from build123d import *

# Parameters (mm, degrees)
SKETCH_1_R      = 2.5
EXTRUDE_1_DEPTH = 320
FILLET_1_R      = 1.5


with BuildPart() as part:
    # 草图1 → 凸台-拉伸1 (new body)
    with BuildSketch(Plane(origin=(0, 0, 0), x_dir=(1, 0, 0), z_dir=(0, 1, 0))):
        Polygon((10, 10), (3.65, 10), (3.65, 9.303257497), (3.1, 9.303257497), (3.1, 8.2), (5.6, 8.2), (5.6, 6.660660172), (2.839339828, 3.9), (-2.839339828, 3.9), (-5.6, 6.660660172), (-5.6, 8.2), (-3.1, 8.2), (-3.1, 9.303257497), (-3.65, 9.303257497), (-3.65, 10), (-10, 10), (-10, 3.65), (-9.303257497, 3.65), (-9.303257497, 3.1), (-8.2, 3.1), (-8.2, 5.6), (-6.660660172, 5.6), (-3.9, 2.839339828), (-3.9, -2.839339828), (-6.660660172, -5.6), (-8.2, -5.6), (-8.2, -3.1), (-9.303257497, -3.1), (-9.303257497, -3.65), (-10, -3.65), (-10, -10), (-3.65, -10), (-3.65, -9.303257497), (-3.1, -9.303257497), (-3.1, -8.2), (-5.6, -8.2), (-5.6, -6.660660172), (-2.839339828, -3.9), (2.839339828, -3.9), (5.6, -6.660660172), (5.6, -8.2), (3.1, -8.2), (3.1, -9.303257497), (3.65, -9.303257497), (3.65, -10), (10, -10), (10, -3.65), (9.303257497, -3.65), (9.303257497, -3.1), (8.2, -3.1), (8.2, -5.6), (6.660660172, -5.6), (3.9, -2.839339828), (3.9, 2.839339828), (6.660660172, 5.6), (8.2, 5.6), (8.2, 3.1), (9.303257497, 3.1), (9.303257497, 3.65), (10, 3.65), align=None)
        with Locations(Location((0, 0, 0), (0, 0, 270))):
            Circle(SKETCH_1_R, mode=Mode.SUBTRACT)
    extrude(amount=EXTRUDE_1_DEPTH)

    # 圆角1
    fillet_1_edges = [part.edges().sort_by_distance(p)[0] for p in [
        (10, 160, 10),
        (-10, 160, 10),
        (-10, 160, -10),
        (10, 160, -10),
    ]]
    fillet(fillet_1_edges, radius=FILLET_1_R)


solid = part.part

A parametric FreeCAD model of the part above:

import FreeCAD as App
import Part
import Sketcher

V = App.Vector


def edges_at(feature, points):
    """Names of the edges that pass closest to the given points."""
    edges = feature.Shape.Edges
    near = lambda p: min(range(len(edges)), key=lambda i: edges[i].distToShape(Part.Vertex(*p))[0])
    return sorted({f"Edge{near(p) + 1}" for p in points})

doc = App.newDocument("Part")
params = doc.addObject("Spreadsheet::Sheet", "Params")
for row, (alias, value) in enumerate([
    ("sketch1_diameter", "5 mm"),
    ("sketch1_width", "2.5 mm"),
    ("sketch1_width2", "6.35 mm"),
    ("sketch1_width3", "0.55 mm"),
    ("pad1_length", "320 mm"),
    ("fillet_radius", "1.5 mm"),
], start=1):
    params.set(f"A{row}", alias)
    params.set(f"B{row}", "=" + value)
    params.setAlias(f"B{row}", alias)

body = doc.addObject("PartDesign::Body", "Body")

sketch1 = doc.addObject("Sketcher::SketchObject", "Sketch")
body.addObject(sketch1)
sketch1.AttachmentSupport = (doc.XZ_Plane, [""])
sketch1.MapMode = "FlatFace"
sketch1.addGeometry(Part.LineSegment(V(10, -10, 0), V(3.6, -10, 0)), False)
sketch1.addGeometry(Part.LineSegment(V(3.6, -10, 0), V(3.6, -9.3, 0)), False)
sketch1.addGeometry(Part.LineSegment(V(3.6, -9.3, 0), V(3.1, -9.3, 0)), False)
sketch1.addGeometry(Part.LineSegment(V(3.1, -9.3, 0), V(3.1, -8.2, 0)), False)
sketch1.addGeometry(Part.LineSegment(V(3.1, -8.2, 0), V(5.6, -8.2, 0)), False)
sketch1.addGeometry(Part.LineSegment(V(5.6, -8.2, 0), V(5.6, -6.7, 0)), False)
sketch1.addGeometry(Part.LineSegment(V(5.6, -6.7, 0), V(2.8, -3.9, 0)), False)
sketch1.addGeometry(Part.LineSegment(V(2.8, -3.9, 0), V(-2.8, -3.9, 0)), False)
sketch1.addGeometry(Part.LineSegment(V(-2.8, -3.9, 0), V(-5.6, -6.7, 0)), False)
sketch1.addGeometry(Part.LineSegment(V(-5.6, -6.7, 0), V(-5.6, -8.2, 0)), False)
sketch1.addGeometry(Part.LineSegment(V(-5.6, -8.2, 0), V(-3.1, -8.2, 0)), False)
sketch1.addGeometry(Part.LineSegment(V(-3.1, -8.2, 0), V(-3.1, -9.3, 0)), False)
sketch1.addGeometry(Part.LineSegment(V(-3.1, -9.3, 0), V(-3.6, -9.3, 0)), False)
sketch1.addGeometry(Part.LineSegment(V(-3.6, -9.3, 0), V(-3.6, -10, 0)), False)
sketch1.addGeometry(Part.LineSegment(V(-3.6, -10, 0), V(-10, -10, 0)), False)
sketch1.addGeometry(Part.LineSegment(V(-10, -10, 0), V(-10, -3.6, 0)), False)
sketch1.addGeometry(Part.LineSegment(V(-10, -3.6, 0), V(-9.3, -3.6, 0)), False)
sketch1.addGeometry(Part.LineSegment(V(-9.3, -3.6, 0), V(-9.3, -3.1, 0)), False)
sketch1.addGeometry(Part.LineSegment(V(-9.3, -3.1, 0), V(-8.2, -3.1, 0)), False)
sketch1.addGeometry(Part.LineSegment(V(-8.2, -3.1, 0), V(-8.2, -5.6, 0)), False)
sketch1.addGeometry(Part.LineSegment(V(-8.2, -5.6, 0), V(-6.7, -5.6, 0)), False)
sketch1.addGeometry(Part.LineSegment(V(-6.7, -5.6, 0), V(-3.9, -2.8, 0)), False)
sketch1.addGeometry(Part.LineSegment(V(-3.9, -2.8, 0), V(-3.9, 2.8, 0)), False)
sketch1.addGeometry(Part.LineSegment(V(-3.9, 2.8, 0), V(-6.7, 5.6, 0)), False)
sketch1.addGeometry(Part.LineSegment(V(-6.7, 5.6, 0), V(-8.2, 5.6, 0)), False)
sketch1.addGeometry(Part.LineSegment(V(-8.2, 5.6, 0), V(-8.2, 3.1, 0)), False)
sketch1.addGeometry(Part.LineSegment(V(-8.2, 3.1, 0), V(-9.3, 3.1, 0)), False)
sketch1.addGeometry(Part.LineSegment(V(-9.3, 3.1, 0), V(-9.3, 3.6, 0)), False)
sketch1.addGeometry(Part.LineSegment(V(-9.3, 3.6, 0), V(-10, 3.6, 0)), False)
sketch1.addGeometry(Part.LineSegment(V(-10, 3.6, 0), V(-10, 10, 0)), False)
sketch1.addGeometry(Part.LineSegment(V(-10, 10, 0), V(-3.6, 10, 0)), False)
sketch1.addGeometry(Part.LineSegment(V(-3.6, 10, 0), V(-3.6, 9.3, 0)), False)
sketch1.addGeometry(Part.LineSegment(V(-3.6, 9.3, 0), V(-3.1, 9.3, 0)), False)
sketch1.addGeometry(Part.LineSegment(V(-3.1, 9.3, 0), V(-3.1, 8.2, 0)), False)
sketch1.addGeometry(Part.LineSegment(V(-3.1, 8.2, 0), V(-5.6, 8.2, 0)), False)
sketch1.addGeometry(Part.LineSegment(V(-5.6, 8.2, 0), V(-5.6, 6.7, 0)), False)
sketch1.addGeometry(Part.LineSegment(V(-5.6, 6.7, 0), V(-2.8, 3.9, 0)), False)
sketch1.addGeometry(Part.LineSegment(V(-2.8, 3.9, 0), V(2.8, 3.9, 0)), False)
sketch1.addGeometry(Part.LineSegment(V(2.8, 3.9, 0), V(5.6, 6.7, 0)), False)
sketch1.addGeometry(Part.LineSegment(V(5.6, 6.7, 0), V(5.6, 8.2, 0)), False)
sketch1.addGeometry(Part.LineSegment(V(5.6, 8.2, 0), V(3.1, 8.2, 0)), False)
sketch1.addGeometry(Part.LineSegment(V(3.1, 8.2, 0), V(3.1, 9.3, 0)), False)
sketch1.addGeometry(Part.LineSegment(V(3.1, 9.3, 0), V(3.6, 9.3, 0)), False)
sketch1.addGeometry(Part.LineSegment(V(3.6, 9.3, 0), V(3.6, 10, 0)), False)
sketch1.addGeometry(Part.LineSegment(V(3.6, 10, 0), V(10, 10, 0)), False)
sketch1.addGeometry(Part.LineSegment(V(10, 10, 0), V(10, 3.6, 0)), False)
sketch1.addGeometry(Part.LineSegment(V(10, 3.6, 0), V(9.3, 3.6, 0)), False)
sketch1.addGeometry(Part.LineSegment(V(9.3, 3.6, 0), V(9.3, 3.1, 0)), False)
sketch1.addGeometry(Part.LineSegment(V(9.3, 3.1, 0), V(8.2, 3.1, 0)), False)
sketch1.addGeometry(Part.LineSegment(V(8.2, 3.1, 0), V(8.2, 5.6, 0)), False)
sketch1.addGeometry(Part.LineSegment(V(8.2, 5.6, 0), V(6.7, 5.6, 0)), False)
sketch1.addGeometry(Part.LineSegment(V(6.7, 5.6, 0), V(3.9, 2.8, 0)), False)
sketch1.addGeometry(Part.LineSegment(V(3.9, 2.8, 0), V(3.9, -2.8, 0)), False)
sketch1.addGeometry(Part.LineSegment(V(3.9, -2.8, 0), V(6.7, -5.6, 0)), False)
sketch1.addGeometry(Part.LineSegment(V(6.7, -5.6, 0), V(8.2, -5.6, 0)), False)
sketch1.addGeometry(Part.LineSegment(V(8.2, -5.6, 0), V(8.2, -3.1, 0)), False)
sketch1.addGeometry(Part.LineSegment(V(8.2, -3.1, 0), V(9.3, -3.1, 0)), False)
sketch1.addGeometry(Part.LineSegment(V(9.3, -3.1, 0), V(9.3, -3.6, 0)), False)
sketch1.addGeometry(Part.LineSegment(V(9.3, -3.6, 0), V(10, -3.6, 0)), False)
sketch1.addGeometry(Part.LineSegment(V(10, -3.6, 0), V(10, -10, 0)), False)
sketch1.addGeometry(Part.Circle(V(0, 0, 0), V(0, 0, 1), 2.5), False)
sketch1.addConstraint(Sketcher.Constraint("Coincident", 0, 2, 1, 1))
sketch1.addConstraint(Sketcher.Constraint("Coincident", 1, 2, 2, 1))
sketch1.addConstraint(Sketcher.Constraint("Coincident", 2, 2, 3, 1))
sketch1.addConstraint(Sketcher.Constraint("Coincident", 3, 2, 4, 1))
sketch1.addConstraint(Sketcher.Constraint("Coincident", 4, 2, 5, 1))
sketch1.addConstraint(Sketcher.Constraint("Coincident", 5, 2, 6, 1))
sketch1.addConstraint(Sketcher.Constraint("Coincident", 6, 2, 7, 1))
sketch1.addConstraint(Sketcher.Constraint("Coincident", 7, 2, 8, 1))
sketch1.addConstraint(Sketcher.Constraint("Coincident", 8, 2, 9, 1))
sketch1.addConstraint(Sketcher.Constraint("Coincident", 9, 2, 10, 1))
sketch1.addConstraint(Sketcher.Constraint("Coincident", 10, 2, 11, 1))
sketch1.addConstraint(Sketcher.Constraint("Coincident", 11, 2, 12, 1))
sketch1.addConstraint(Sketcher.Constraint("Coincident", 12, 2, 13, 1))
sketch1.addConstraint(Sketcher.Constraint("Coincident", 13, 2, 14, 1))
sketch1.addConstraint(Sketcher.Constraint("Coincident", 14, 2, 15, 1))
sketch1.addConstraint(Sketcher.Constraint("Coincident", 15, 2, 16, 1))
sketch1.addConstraint(Sketcher.Constraint("Coincident", 16, 2, 17, 1))
sketch1.addConstraint(Sketcher.Constraint("Coincident", 17, 2, 18, 1))
sketch1.addConstraint(Sketcher.Constraint("Coincident", 18, 2, 19, 1))
sketch1.addConstraint(Sketcher.Constraint("Coincident", 19, 2, 20, 1))
sketch1.addConstraint(Sketcher.Constraint("Coincident", 20, 2, 21, 1))
sketch1.addConstraint(Sketcher.Constraint("Coincident", 21, 2, 22, 1))
sketch1.addConstraint(Sketcher.Constraint("Coincident", 22, 2, 23, 1))
sketch1.addConstraint(Sketcher.Constraint("Coincident", 23, 2, 24, 1))
sketch1.addConstraint(Sketcher.Constraint("Coincident", 24, 2, 25, 1))
sketch1.addConstraint(Sketcher.Constraint("Coincident", 25, 2, 26, 1))
sketch1.addConstraint(Sketcher.Constraint("Coincident", 26, 2, 27, 1))
sketch1.addConstraint(Sketcher.Constraint("Coincident", 27, 2, 28, 1))
sketch1.addConstraint(Sketcher.Constraint("Coincident", 28, 2, 29, 1))
sketch1.addConstraint(Sketcher.Constraint("Coincident", 29, 2, 30, 1))
sketch1.addConstraint(Sketcher.Constraint("Coincident", 30, 2, 31, 1))
sketch1.addConstraint(Sketcher.Constraint("Coincident", 31, 2, 32, 1))
sketch1.addConstraint(Sketcher.Constraint("Coincident", 32, 2, 33, 1))
sketch1.addConstraint(Sketcher.Constraint("Coincident", 33, 2, 34, 1))
sketch1.addConstraint(Sketcher.Constraint("Coincident", 34, 2, 35, 1))
sketch1.addConstraint(Sketcher.Constraint("Coincident", 35, 2, 36, 1))
sketch1.addConstraint(Sketcher.Constraint("Coincident", 36, 2, 37, 1))
sketch1.addConstraint(Sketcher.Constraint("Coincident", 37, 2, 38, 1))
sketch1.addConstraint(Sketcher.Constraint("Coincident", 38, 2, 39, 1))
sketch1.addConstraint(Sketcher.Constraint("Coincident", 39, 2, 40, 1))
sketch1.addConstraint(Sketcher.Constraint("Coincident", 40, 2, 41, 1))
sketch1.addConstraint(Sketcher.Constraint("Coincident", 41, 2, 42, 1))
sketch1.addConstraint(Sketcher.Constraint("Coincident", 42, 2, 43, 1))
sketch1.addConstraint(Sketcher.Constraint("Coincident", 43, 2, 44, 1))
sketch1.addConstraint(Sketcher.Constraint("Coincident", 44, 2, 45, 1))
sketch1.addConstraint(Sketcher.Constraint("Coincident", 45, 2, 46, 1))
sketch1.addConstraint(Sketcher.Constraint("Coincident", 46, 2, 47, 1))
sketch1.addConstraint(Sketcher.Constraint("Coincident", 47, 2, 48, 1))
sketch1.addConstraint(Sketcher.Constraint("Coincident", 48, 2, 49, 1))
sketch1.addConstraint(Sketcher.Constraint("Coincident", 49, 2, 50, 1))
sketch1.addConstraint(Sketcher.Constraint("Coincident", 50, 2, 51, 1))
sketch1.addConstraint(Sketcher.Constraint("Coincident", 51, 2, 52, 1))
sketch1.addConstraint(Sketcher.Constraint("Coincident", 52, 2, 53, 1))
sketch1.addConstraint(Sketcher.Constraint("Coincident", 53, 2, 54, 1))
sketch1.addConstraint(Sketcher.Constraint("Coincident", 54, 2, 55, 1))
sketch1.addConstraint(Sketcher.Constraint("Coincident", 55, 2, 56, 1))
sketch1.addConstraint(Sketcher.Constraint("Coincident", 56, 2, 57, 1))
sketch1.addConstraint(Sketcher.Constraint("Coincident", 57, 2, 58, 1))
sketch1.addConstraint(Sketcher.Constraint("Coincident", 58, 2, 59, 1))
sketch1.addConstraint(Sketcher.Constraint("Coincident", 59, 2, 0, 1))
sketch1.addConstraint(Sketcher.Constraint("Horizontal", 0))
sketch1.addConstraint(Sketcher.Constraint("Vertical", 1))
sketch1.addConstraint(Sketcher.Constraint("Horizontal", 2))
sketch1.addConstraint(Sketcher.Constraint("Vertical", 3))
sketch1.addConstraint(Sketcher.Constraint("Horizontal", 4))
sketch1.addConstraint(Sketcher.Constraint("Vertical", 5))
sketch1.addConstraint(Sketcher.Constraint("Horizontal", 7))
sketch1.addConstraint(Sketcher.Constraint("Vertical", 9))
sketch1.addConstraint(Sketcher.Constraint("Horizontal", 10))
sketch1.addConstraint(Sketcher.Constraint("Vertical", 11))
sketch1.addConstraint(Sketcher.Constraint("Horizontal", 12))
sketch1.addConstraint(Sketcher.Constraint("Vertical", 13))
sketch1.addConstraint(Sketcher.Constraint("Horizontal", 14))
sketch1.addConstraint(Sketcher.Constraint("Vertical", 15))
sketch1.addConstraint(Sketcher.Constraint("Horizontal", 16))
sketch1.addConstraint(Sketcher.Constraint("Vertical", 17))
sketch1.addConstraint(Sketcher.Constraint("Horizontal", 18))
sketch1.addConstraint(Sketcher.Constraint("Vertical", 19))
sketch1.addConstraint(Sketcher.Constraint("Horizontal", 20))
sketch1.addConstraint(Sketcher.Constraint("Vertical", 22))
sketch1.addConstraint(Sketcher.Constraint("Horizontal", 24))
sketch1.addConstraint(Sketcher.Constraint("Vertical", 25))
sketch1.addConstraint(Sketcher.Constraint("Horizontal", 26))
sketch1.addConstraint(Sketcher.Constraint("Vertical", 27))
sketch1.addConstraint(Sketcher.Constraint("Horizontal", 28))
sketch1.addConstraint(Sketcher.Constraint("Vertical", 29))
sketch1.addConstraint(Sketcher.Constraint("Horizontal", 30))
sketch1.addConstraint(Sketcher.Constraint("Vertical", 31))
sketch1.addConstraint(Sketcher.Constraint("Horizontal", 32))
sketch1.addConstraint(Sketcher.Constraint("Vertical", 33))
sketch1.addConstraint(Sketcher.Constraint("Horizontal", 34))
sketch1.addConstraint(Sketcher.Constraint("Vertical", 35))
sketch1.addConstraint(Sketcher.Constraint("Horizontal", 37))
sketch1.addConstraint(Sketcher.Constraint("Vertical", 39))
sketch1.addConstraint(Sketcher.Constraint("Horizontal", 40))
sketch1.addConstraint(Sketcher.Constraint("Vertical", 41))
sketch1.addConstraint(Sketcher.Constraint("Horizontal", 42))
sketch1.addConstraint(Sketcher.Constraint("Vertical", 43))
sketch1.addConstraint(Sketcher.Constraint("Horizontal", 44))
sketch1.addConstraint(Sketcher.Constraint("Vertical", 45))
sketch1.addConstraint(Sketcher.Constraint("Horizontal", 46))
sketch1.addConstraint(Sketcher.Constraint("Vertical", 47))
sketch1.addConstraint(Sketcher.Constraint("Horizontal", 48))
sketch1.addConstraint(Sketcher.Constraint("Vertical", 49))
sketch1.addConstraint(Sketcher.Constraint("Horizontal", 50))
sketch1.addConstraint(Sketcher.Constraint("Vertical", 52))
sketch1.addConstraint(Sketcher.Constraint("Horizontal", 54))
sketch1.addConstraint(Sketcher.Constraint("Vertical", 55))
sketch1.addConstraint(Sketcher.Constraint("Horizontal", 56))
sketch1.addConstraint(Sketcher.Constraint("Vertical", 57))
sketch1.addConstraint(Sketcher.Constraint("Horizontal", 58))
sketch1.addConstraint(Sketcher.Constraint("Vertical", 59))
sketch1.addConstraint(Sketcher.Constraint("Coincident", 60, 3, -1, 1))
sketch1.addConstraint(Sketcher.Constraint("Symmetric", 0, 2, 30, 2, -1, 1))
sketch1.addConstraint(Sketcher.Constraint("Symmetric", 2, 2, 32, 2, -1, 1))
sketch1.addConstraint(Sketcher.Constraint("Symmetric", 4, 2, 34, 2, -1, 1))
sketch1.addConstraint(Sketcher.Constraint("Symmetric", 6, 2, 36, 2, -1, 1))
sketch1.addConstraint(Sketcher.Constraint("Symmetric", 8, 2, 38, 2, -1, 1))
sketch1.addConstraint(Sketcher.Constraint("Symmetric", 10, 2, 40, 2, -1, 1))
sketch1.addConstraint(Sketcher.Constraint("Symmetric", 12, 2, 42, 2, -1, 1))
sketch1.addConstraint(Sketcher.Constraint("Symmetric", 14, 2, 44, 2, -1, 1))
sketch1.addConstraint(Sketcher.Constraint("Symmetric", 16, 2, 46, 2, -1, 1))
sketch1.addConstraint(Sketcher.Constraint("Symmetric", 18, 2, 48, 2, -1, 1))
sketch1.addConstraint(Sketcher.Constraint("Symmetric", 20, 2, 50, 2, -1, 1))
sketch1.addConstraint(Sketcher.Constraint("Symmetric", 21, 2, 51, 2, -1, 1))
sketch1.addConstraint(Sketcher.Constraint("Symmetric", 23, 2, 53, 2, -1, 1))
sketch1.addConstraint(Sketcher.Constraint("Symmetric", 25, 2, 55, 2, -1, 1))
sketch1.addConstraint(Sketcher.Constraint("Symmetric", 27, 2, 57, 2, -1, 1))
sketch1.addConstraint(Sketcher.Constraint("Symmetric", 5, 2, 8, 2, -2))
sketch1.addConstraint(Sketcher.Constraint("Symmetric", 3, 2, 10, 2, -2))
sketch1.addConstraint(Sketcher.Constraint("Symmetric", 1, 2, 12, 2, -2))
sketch1.addConstraint(Sketcher.Constraint("Symmetric", 29, 2, 44, 2, -2))
sketch1.addConstraint(Sketcher.Constraint("Symmetric", 27, 2, 46, 2, -2))
sketch1.addConstraint(Sketcher.Constraint("Symmetric", 25, 2, 48, 2, -2))
sketch1.addConstraint(Sketcher.Constraint("Symmetric", 23, 2, 50, 2, -2))
sketch1.addConstraint(Sketcher.Constraint("Perpendicular", 6, 8))
sketch1.addConstraint(Sketcher.Constraint("Parallel", 8, 21))
sketch1.addConstraint(Sketcher.Constraint("Perpendicular", 21, 23))
sketch1.addConstraint(Sketcher.Constraint("Parallel", 23, 36))
sketch1.addConstraint(Sketcher.Constraint("Perpendicular", 36, 38))
sketch1.addConstraint(Sketcher.Constraint("Perpendicular", 51, 53))
sketch1.addConstraint(Sketcher.Constraint("Horizontal", 22, 2, 51, 2))
sketch1.addConstraint(Sketcher.Constraint("Vertical", 45, 2, 58, 2))
sketch1.addConstraint(Sketcher.Constraint("Equal", 58, 1))
sketch1.addConstraint(Sketcher.Constraint("Equal", 56, 3))
sketch1.addConstraint(Sketcher.Constraint("Equal", 54, 5))
sketch1.addConstraint(Sketcher.Constraint("Equal", 44, 15))
sketch1.addConstraint(Sketcher.Constraint("Equal", 42, 17))
sketch1.addConstraint(Sketcher.Constraint("Equal", 40, 19))
sketch1.addConstraint(Sketcher.Constraint("Equal", 37, 22))
sketch1.addConstraint(Sketcher.Constraint("Equal", 8, 21))
sketch1.addConstraint(Sketcher.Constraint("Diameter", 60, 5.0))
sketch1.addConstraint(Sketcher.Constraint("DistanceX", 4, 1, 4, 2, 2.5))
sketch1.addConstraint(Sketcher.Constraint("DistanceY", 0, 2, -1, 1, 10.0))
sketch1.addConstraint(Sketcher.Constraint("DistanceX", 0, 2, 0, 1, 6.35))
sketch1.addConstraint(Sketcher.Constraint("DistanceX", 2, 2, 2, 1, 0.55))
sketch1.addConstraint(Sketcher.Constraint("DistanceY", 3, 2, -1, 1, 8.2))
sketch1.addConstraint(Sketcher.Constraint("DistanceY", 6, 2, -1, 1, 3.9))
sketch1.addConstraint(Sketcher.Constraint("DistanceX", 7, 2, 7, 1, 5.67868))
sketch1.addConstraint(Sketcher.Constraint("DistanceX", 16, 1, 16, 2, 0.696743))
sketch1.setExpression("Constraints[151]", "Params.sketch1_diameter")
sketch1.setExpression("Constraints[152]", "Params.sketch1_width")
sketch1.setExpression("Constraints[154]", "Params.sketch1_width2")
sketch1.setExpression("Constraints[155]", "Params.sketch1_width3")
pad1 = doc.addObject("PartDesign::Pad", "Pad")
body.addObject(pad1)
pad1.Profile = sketch1
pad1.setExpression("Length", "Params.pad1_length")
pad1.Reversed = True
doc.recompute()

fillet = doc.addObject("PartDesign::Fillet", "Fillet")
body.addObject(fillet)
fillet.Base = (pad1, edges_at(pad1, [
    (10, 160, 10),
    (-10, 160, 10),
    (-10, 160, -10),
    (10, 160, -10),
]))
fillet.setExpression("Radius", "Params.fillet_radius")

doc.recompute()
